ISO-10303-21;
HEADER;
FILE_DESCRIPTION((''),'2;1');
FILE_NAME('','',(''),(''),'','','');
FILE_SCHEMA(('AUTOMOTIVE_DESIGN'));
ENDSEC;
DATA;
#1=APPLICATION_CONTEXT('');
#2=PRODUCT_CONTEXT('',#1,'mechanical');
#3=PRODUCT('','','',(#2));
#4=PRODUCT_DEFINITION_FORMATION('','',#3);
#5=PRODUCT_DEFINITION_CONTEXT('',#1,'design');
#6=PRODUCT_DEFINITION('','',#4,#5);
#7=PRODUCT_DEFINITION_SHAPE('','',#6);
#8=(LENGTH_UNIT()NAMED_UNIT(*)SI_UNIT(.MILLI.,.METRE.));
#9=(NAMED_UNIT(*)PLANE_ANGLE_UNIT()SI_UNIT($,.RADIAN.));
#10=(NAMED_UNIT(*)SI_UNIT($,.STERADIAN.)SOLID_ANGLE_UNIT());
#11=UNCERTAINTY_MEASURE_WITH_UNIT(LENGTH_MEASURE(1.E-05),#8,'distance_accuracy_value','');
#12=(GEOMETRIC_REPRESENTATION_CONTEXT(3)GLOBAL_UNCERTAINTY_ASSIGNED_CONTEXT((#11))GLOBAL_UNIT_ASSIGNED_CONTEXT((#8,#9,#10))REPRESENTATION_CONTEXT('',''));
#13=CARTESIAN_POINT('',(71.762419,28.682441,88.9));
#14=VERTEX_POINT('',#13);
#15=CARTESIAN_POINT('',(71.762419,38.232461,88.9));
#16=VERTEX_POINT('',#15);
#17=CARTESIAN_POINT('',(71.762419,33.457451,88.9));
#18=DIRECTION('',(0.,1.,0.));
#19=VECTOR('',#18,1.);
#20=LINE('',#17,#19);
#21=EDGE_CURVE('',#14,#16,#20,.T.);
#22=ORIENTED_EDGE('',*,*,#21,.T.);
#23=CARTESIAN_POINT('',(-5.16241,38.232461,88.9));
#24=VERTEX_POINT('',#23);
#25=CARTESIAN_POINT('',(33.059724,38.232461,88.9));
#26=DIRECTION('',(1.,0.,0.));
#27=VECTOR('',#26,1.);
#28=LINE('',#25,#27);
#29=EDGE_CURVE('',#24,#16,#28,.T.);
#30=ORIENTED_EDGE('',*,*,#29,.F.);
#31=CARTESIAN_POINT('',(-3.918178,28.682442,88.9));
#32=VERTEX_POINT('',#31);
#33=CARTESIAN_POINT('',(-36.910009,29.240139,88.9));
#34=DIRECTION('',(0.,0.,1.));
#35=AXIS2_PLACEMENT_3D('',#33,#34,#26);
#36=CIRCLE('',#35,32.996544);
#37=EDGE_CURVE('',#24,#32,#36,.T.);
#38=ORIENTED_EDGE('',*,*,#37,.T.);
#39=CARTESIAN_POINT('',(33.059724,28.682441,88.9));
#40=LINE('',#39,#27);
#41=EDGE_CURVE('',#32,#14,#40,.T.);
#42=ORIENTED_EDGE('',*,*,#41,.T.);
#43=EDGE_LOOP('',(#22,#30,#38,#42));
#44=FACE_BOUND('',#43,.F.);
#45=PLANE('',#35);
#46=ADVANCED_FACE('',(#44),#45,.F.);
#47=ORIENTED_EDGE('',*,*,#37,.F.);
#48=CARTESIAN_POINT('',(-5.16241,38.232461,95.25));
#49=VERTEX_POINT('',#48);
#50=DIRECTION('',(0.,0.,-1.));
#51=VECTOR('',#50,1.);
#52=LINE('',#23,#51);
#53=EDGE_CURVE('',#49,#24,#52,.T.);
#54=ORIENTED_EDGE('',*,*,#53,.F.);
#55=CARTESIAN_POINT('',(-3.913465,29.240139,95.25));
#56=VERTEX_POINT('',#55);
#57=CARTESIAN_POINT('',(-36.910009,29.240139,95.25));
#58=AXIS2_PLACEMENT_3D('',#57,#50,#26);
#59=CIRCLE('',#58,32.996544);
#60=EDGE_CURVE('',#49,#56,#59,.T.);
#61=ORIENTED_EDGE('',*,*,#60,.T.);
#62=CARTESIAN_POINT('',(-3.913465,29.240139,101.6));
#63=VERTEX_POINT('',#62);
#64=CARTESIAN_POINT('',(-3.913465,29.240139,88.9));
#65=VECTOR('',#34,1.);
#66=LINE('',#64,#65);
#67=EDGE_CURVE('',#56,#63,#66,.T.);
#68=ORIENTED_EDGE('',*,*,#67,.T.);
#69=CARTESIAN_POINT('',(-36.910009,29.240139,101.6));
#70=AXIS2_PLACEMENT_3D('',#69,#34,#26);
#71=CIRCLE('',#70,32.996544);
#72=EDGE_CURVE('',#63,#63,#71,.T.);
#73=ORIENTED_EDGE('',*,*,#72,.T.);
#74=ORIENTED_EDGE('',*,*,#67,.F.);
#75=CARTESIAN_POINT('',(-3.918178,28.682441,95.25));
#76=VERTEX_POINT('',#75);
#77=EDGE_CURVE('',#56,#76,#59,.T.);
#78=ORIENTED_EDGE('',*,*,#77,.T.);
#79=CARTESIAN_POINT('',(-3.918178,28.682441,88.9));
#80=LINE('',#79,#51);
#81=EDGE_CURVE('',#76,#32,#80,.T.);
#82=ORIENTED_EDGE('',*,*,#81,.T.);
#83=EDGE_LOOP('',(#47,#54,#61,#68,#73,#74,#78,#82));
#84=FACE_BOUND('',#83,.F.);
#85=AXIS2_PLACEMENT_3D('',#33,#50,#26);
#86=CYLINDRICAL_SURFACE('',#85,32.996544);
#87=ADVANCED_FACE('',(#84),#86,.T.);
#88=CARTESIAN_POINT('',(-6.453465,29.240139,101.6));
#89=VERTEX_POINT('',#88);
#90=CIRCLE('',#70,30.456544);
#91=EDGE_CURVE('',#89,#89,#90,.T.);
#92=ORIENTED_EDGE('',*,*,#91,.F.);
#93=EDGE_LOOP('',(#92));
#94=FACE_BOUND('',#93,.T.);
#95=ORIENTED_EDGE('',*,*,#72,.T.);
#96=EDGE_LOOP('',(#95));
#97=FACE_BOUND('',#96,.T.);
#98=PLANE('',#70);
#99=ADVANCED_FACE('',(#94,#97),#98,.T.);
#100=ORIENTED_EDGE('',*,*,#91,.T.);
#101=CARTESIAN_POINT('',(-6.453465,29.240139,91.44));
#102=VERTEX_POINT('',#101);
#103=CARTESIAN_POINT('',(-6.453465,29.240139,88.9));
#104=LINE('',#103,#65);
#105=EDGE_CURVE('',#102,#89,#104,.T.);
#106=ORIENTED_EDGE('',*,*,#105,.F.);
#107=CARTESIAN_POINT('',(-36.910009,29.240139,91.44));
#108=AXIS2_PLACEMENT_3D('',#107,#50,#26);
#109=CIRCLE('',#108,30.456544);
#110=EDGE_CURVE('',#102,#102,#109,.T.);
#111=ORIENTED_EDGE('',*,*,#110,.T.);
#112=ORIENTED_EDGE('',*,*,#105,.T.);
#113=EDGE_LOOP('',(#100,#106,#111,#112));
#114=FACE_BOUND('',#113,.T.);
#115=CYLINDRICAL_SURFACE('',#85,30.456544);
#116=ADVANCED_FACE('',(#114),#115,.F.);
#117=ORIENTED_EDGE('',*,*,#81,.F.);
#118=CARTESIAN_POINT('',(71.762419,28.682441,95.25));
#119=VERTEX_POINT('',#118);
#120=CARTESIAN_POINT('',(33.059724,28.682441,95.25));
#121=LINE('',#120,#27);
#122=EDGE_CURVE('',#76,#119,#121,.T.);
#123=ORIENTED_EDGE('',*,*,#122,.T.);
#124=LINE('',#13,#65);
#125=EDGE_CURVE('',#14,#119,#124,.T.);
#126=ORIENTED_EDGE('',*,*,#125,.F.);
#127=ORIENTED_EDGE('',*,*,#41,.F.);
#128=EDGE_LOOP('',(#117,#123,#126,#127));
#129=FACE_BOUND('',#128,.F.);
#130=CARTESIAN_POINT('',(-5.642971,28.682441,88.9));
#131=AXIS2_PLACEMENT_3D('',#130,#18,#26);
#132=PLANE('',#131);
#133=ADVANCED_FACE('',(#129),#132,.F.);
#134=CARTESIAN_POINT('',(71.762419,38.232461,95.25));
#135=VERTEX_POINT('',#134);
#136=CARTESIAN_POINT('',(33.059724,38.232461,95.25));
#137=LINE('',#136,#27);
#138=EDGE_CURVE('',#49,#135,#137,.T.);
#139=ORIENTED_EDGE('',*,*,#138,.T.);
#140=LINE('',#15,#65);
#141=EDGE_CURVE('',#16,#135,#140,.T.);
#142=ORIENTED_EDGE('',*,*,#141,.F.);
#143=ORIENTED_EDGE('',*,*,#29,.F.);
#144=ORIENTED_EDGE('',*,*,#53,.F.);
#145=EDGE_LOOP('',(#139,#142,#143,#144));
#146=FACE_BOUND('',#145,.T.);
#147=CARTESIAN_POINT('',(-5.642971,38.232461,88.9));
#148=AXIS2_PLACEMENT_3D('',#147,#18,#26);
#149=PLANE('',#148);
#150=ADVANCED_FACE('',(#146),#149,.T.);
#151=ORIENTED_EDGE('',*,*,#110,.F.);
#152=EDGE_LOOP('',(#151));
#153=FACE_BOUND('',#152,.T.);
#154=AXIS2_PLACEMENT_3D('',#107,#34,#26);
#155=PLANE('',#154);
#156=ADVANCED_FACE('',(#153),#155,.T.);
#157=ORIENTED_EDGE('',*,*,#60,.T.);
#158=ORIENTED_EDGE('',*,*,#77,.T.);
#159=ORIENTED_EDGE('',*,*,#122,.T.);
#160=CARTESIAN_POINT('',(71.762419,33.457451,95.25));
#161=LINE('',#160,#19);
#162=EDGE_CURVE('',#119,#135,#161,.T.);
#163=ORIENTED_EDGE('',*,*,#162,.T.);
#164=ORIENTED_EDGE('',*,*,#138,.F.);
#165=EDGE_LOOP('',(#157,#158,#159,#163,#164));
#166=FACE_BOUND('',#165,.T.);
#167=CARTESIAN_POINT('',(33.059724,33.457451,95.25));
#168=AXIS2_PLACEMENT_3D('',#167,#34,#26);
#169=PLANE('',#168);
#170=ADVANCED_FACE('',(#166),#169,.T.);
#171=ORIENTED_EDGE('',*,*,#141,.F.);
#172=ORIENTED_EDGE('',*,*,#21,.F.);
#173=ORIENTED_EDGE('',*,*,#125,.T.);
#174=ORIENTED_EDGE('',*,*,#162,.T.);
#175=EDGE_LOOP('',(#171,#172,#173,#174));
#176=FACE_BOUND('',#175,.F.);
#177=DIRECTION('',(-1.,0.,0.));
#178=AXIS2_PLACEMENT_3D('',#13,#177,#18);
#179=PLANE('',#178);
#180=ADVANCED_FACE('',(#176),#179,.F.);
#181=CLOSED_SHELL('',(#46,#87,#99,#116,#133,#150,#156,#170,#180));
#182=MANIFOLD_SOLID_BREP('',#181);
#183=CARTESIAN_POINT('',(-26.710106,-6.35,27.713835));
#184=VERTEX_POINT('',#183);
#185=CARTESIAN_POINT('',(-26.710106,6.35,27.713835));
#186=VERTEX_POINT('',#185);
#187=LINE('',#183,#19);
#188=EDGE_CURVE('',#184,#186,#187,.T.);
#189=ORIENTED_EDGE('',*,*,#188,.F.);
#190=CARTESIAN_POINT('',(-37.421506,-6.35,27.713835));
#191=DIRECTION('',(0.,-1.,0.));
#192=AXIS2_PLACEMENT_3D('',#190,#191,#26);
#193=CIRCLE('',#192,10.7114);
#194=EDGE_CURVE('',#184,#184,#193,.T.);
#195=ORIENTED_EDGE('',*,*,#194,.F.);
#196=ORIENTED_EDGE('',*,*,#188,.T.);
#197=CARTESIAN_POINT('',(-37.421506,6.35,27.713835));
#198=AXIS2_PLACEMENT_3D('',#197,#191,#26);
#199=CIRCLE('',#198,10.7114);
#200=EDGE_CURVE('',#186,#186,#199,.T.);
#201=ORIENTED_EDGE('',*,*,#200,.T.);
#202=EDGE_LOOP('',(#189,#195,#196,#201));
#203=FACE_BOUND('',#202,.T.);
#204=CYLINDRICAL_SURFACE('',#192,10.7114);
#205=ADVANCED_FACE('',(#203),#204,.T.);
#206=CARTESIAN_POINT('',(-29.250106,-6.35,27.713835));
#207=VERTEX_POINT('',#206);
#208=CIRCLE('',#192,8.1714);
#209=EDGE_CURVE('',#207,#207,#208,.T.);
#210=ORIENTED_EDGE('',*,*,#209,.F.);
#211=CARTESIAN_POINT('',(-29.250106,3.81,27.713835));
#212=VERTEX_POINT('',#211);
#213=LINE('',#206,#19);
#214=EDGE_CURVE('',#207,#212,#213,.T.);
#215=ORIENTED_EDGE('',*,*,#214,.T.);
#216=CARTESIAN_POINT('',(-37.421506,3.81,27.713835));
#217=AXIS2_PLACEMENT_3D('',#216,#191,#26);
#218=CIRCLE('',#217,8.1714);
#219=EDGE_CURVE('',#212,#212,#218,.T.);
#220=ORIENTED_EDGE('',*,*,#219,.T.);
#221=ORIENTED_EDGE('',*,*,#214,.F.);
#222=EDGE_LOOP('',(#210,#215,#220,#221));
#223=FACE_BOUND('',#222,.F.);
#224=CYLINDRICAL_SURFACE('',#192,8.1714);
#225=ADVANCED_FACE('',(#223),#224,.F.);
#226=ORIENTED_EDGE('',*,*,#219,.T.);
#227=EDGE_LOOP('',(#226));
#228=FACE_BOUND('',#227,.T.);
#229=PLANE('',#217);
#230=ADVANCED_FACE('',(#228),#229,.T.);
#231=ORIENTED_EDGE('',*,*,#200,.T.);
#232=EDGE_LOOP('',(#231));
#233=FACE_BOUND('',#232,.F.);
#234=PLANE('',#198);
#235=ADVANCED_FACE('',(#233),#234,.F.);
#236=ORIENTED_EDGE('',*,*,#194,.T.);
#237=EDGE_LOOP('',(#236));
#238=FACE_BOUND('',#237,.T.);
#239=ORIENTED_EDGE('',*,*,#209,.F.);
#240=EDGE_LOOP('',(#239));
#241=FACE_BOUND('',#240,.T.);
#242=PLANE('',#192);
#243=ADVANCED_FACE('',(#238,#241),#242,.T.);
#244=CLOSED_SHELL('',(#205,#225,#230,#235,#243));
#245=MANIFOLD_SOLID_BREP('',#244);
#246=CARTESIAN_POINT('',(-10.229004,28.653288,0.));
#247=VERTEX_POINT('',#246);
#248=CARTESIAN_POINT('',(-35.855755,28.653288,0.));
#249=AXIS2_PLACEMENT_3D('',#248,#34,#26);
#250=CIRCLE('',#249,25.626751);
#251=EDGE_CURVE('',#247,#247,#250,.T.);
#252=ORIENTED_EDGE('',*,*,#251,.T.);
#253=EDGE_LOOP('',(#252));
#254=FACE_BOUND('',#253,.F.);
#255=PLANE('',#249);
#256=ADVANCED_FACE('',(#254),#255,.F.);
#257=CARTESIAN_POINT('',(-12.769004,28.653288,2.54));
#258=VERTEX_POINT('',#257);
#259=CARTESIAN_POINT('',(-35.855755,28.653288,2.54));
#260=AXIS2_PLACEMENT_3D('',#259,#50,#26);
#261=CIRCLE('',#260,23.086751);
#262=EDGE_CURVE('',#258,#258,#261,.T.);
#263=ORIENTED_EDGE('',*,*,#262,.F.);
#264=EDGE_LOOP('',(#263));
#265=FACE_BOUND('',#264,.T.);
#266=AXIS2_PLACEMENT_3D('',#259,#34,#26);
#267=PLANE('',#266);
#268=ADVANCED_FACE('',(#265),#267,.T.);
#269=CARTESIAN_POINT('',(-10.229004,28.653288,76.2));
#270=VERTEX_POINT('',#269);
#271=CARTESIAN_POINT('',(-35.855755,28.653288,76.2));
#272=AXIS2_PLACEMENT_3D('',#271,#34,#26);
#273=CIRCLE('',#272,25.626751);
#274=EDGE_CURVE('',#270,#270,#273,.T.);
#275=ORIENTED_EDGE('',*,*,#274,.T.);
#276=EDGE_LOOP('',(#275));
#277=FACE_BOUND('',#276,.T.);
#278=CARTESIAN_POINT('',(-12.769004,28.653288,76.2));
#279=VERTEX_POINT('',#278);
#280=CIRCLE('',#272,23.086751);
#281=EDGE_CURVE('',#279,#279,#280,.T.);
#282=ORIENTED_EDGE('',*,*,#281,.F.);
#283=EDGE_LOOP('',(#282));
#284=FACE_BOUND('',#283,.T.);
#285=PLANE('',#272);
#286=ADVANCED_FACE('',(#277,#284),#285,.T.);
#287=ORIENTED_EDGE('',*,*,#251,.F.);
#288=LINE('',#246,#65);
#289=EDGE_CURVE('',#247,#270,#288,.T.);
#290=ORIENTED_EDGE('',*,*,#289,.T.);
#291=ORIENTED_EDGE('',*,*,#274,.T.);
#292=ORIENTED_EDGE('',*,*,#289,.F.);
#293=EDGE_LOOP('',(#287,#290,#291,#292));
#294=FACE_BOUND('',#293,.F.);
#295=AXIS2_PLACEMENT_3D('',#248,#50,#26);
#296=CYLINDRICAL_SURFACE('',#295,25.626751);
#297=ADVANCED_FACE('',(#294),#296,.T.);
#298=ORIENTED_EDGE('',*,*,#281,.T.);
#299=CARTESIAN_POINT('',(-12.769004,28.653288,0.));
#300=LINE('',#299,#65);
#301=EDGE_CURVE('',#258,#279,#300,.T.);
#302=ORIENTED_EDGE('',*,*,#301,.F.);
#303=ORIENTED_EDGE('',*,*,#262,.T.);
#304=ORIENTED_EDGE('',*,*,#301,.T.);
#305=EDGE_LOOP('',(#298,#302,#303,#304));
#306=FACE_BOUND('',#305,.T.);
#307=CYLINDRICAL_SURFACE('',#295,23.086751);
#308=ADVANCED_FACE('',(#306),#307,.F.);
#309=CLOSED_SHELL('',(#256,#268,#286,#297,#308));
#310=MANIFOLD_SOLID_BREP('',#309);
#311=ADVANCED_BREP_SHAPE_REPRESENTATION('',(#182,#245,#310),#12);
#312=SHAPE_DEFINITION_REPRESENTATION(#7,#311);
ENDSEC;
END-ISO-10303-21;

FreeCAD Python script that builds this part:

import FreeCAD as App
import Part
import Sketcher
Q = App.Units.Quantity


def faces_at(feature, points):
    """Names of the faces that lie closest to the given points."""
    faces = feature.Shape.Faces
    near = lambda p: min(range(len(faces)), key=lambda i: faces[i].distToShape(Part.Vertex(*p))[0])
    return sorted({f"Face{near(p) + 1}" for p in points})


def add_polygon(sketch, points):
    """Adds a closed chain of lines whose ends are joined by coincident constraints."""
    first, n = sketch.GeometryCount, len(points)
    for a, b in zip(points, points[1:] + points[:1]):
        sketch.addGeometry(Part.LineSegment(App.Vector(*a, 0), App.Vector(*b, 0)), False)
    for i in range(n):
        sketch.addConstraint(Sketcher.Constraint("Coincident", first + i, 2, first + (i + 1) % n, 1))

doc = App.newDocument("Part")
body = doc.addObject("PartDesign::Body", "Body")

# Sketch on XY plane
sketch1 = doc.addObject("Sketcher::SketchObject", "Sketch")
body.addObject(sketch1)
sketch1.AttachmentSupport = (doc.XY_Plane, [""])
sketch1.MapMode = "FlatFace"
sketch1.addGeometry(Part.Circle(App.Vector(-36, 29, 0), App.Vector(0, 0, 1), 26), False)
sketch1.addConstraint(Sketcher.Constraint("Diameter", 0, Q("51.253502 mm")))
sketch1.addConstraint(Sketcher.Constraint("DistanceY", -1, 1, 0, 3, Q("28.653288 mm")))
sketch1.addConstraint(Sketcher.Constraint("DistanceX", 0, 3, -1, 1, Q("35.855755 mm")))
pad1 = doc.addObject("PartDesign::Pad", "Pad")
body.addObject(pad1)
pad1.Profile = sketch1
pad1.Length = Q("3 in")
doc.recompute()

thickness = doc.addObject("PartDesign::Thickness", "Thickness")
body.addObject(thickness)
thickness.Base = (pad1, faces_at(pad1, [(-35.856, 28.653, 76.2)]))
thickness.Value = Q("0.1 in")
thickness.Reversed = True
thickness.Join = "Arc"
body2 = doc.addObject("PartDesign::Body", "Body001")

# Sketch on XZ plane
sketch2 = doc.addObject("Sketcher::SketchObject", "Sketch001")
body2.addObject(sketch2)
sketch2.AttachmentSupport = (doc.getObject("XZ_Plane001"), [""])
sketch2.MapMode = "FlatFace"
sketch2.AttachmentOffset = App.Placement(App.Vector(0, 0, 0.25 * 25.4), App.Rotation())
sketch2.addGeometry(Part.Circle(App.Vector(-37, 28, 0), App.Vector(0, 0, 1), 11), False)
sketch2.addConstraint(Sketcher.Constraint("Diameter", 0, Q("21.4228 mm")))
sketch2.addConstraint(Sketcher.Constraint("DistanceX", 0, 3, -1, 1, Q("37.421506 mm")))
sketch2.addConstraint(Sketcher.Constraint("DistanceY", -1, 1, 0, 3, Q("27.713835 mm")))
pad2 = doc.addObject("PartDesign::Pad", "Pad001")
body2.addObject(pad2)
pad2.Profile = sketch2
pad2.Length = Q("0.5 in")
pad2.Reversed = True
doc.recompute()

thickness2 = doc.addObject("PartDesign::Thickness", "Thickness001")
body2.addObject(thickness2)
thickness2.Base = (pad2, faces_at(pad2, [(-37.422, -6.35, 27.714)]))
thickness2.Value = Q("0.1 in")
thickness2.Reversed = True
thickness2.Join = "Arc"
body3 = doc.addObject("PartDesign::Body", "Body002")

# Sketch on XY plane
sketch3 = doc.addObject("Sketcher::SketchObject", "Sketch002")
body3.addObject(sketch3)
sketch3.AttachmentSupport = (doc.getObject("XY_Plane002"), [""])
sketch3.MapMode = "FlatFace"
sketch3.AttachmentOffset = App.Placement(App.Vector(0, 0, 3.5 * 25.4), App.Rotation())
sketch3.addGeometry(Part.Circle(App.Vector(-37, 29, 0), App.Vector(0, 0, 1), 33), False)
sketch3.addConstraint(Sketcher.Constraint("Diameter", 0, Q("65.993088 mm")))
sketch3.addConstraint(Sketcher.Constraint("DistanceX", 0, 3, -1, 1, Q("36.910009 mm")))
sketch3.addConstraint(Sketcher.Constraint("DistanceY", -1, 1, 0, 3, Q("29.240139 mm")))
pad3 = doc.addObject("PartDesign::Pad", "Pad002")
body3.addObject(pad3)
pad3.Profile = sketch3
pad3.Length = Q("0.5 in")
doc.recompute()

thickness3 = doc.addObject("PartDesign::Thickness", "Thickness002")
body3.addObject(thickness3)
thickness3.Base = (pad3, faces_at(pad3, [(-36.91, 29.24, 101.6)]))
thickness3.Value = Q("0.1 in")
thickness3.Reversed = True
thickness3.Join = "Arc"

# Sketch on XY plane
sketch4 = doc.addObject("Sketcher::SketchObject", "Sketch003")
body3.addObject(sketch4)
sketch4.AttachmentSupport = (doc.getObject("XY_Plane002"), [""])
sketch4.MapMode = "FlatFace"
sketch4.AttachmentOffset = App.Placement(App.Vector(0, 0, 3.5 * 25.4), App.Rotation())
add_polygon(sketch4, [(-6, 38), (-6, 29), (72, 29), (72, 38)])  # lines 0-3
sketch4.addConstraint(Sketcher.Constraint("Vertical", 0))
sketch4.addConstraint(Sketcher.Constraint("Horizontal", 1))
sketch4.addConstraint(Sketcher.Constraint("Vertical", 2))
sketch4.addConstraint(Sketcher.Constraint("Horizontal", 3))
sketch4.addConstraint(Sketcher.Constraint("DistanceX", 1, 1, 1, 2, Q("77.405391 mm")))
sketch4.addConstraint(Sketcher.Constraint("DistanceY", 0, 2, 0, 1, Q("9.550019 mm")))
sketch4.addConstraint(Sketcher.Constraint("DistanceX", 0, 2, -1, 1, Q("5.642971 mm")))
sketch4.addConstraint(Sketcher.Constraint("DistanceY", -1, 1, 0, 2, Q("28.682441 mm")))
pad4 = doc.addObject("PartDesign::Pad", "Pad003")
body3.addObject(pad4)
pad4.Profile = sketch4
pad4.Length = Q("0.25 in")

doc.recompute()
